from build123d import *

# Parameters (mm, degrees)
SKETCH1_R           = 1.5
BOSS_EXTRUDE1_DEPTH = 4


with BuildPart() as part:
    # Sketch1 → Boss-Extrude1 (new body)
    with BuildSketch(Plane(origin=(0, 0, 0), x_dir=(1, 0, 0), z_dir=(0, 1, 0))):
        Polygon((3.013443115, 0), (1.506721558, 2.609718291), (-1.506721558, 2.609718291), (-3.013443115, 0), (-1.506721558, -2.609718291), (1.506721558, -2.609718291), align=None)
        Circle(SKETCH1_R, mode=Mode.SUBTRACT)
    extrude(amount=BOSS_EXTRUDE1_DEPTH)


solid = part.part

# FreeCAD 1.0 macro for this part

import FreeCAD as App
import Part
import Sketcher
Q = App.Units.Quantity

doc = App.newDocument("Part")
body = doc.addObject("PartDesign::Body", "Body")

sketch1 = body.newObject("Sketcher::SketchObject", "Sketch")
sketch1.AttachmentSupport = (doc.getObject("XZ_Plane"), [""])
sketch1.MapMode = "FlatFace"
sketch1.addGeometry([
    Part.LineSegment(App.Vector(3, 0, 0), App.Vector(1.5, -2.6, 0)),
    Part.LineSegment(App.Vector(1.5, -2.6, 0), App.Vector(-1.5, -2.6, 0)),
    Part.LineSegment(App.Vector(-1.5, -2.6, 0), App.Vector(-3, 0, 0)),
    Part.LineSegment(App.Vector(-3, 0, 0), App.Vector(-1.5, 2.6, 0)),
    Part.LineSegment(App.Vector(-1.5, 2.6, 0), App.Vector(1.5, 2.6, 0)),
    Part.LineSegment(App.Vector(1.5, 2.6, 0), App.Vector(3, 0, 0)),
    Part.Circle(App.Vector(0, 0, 0), App.Vector(0, 0, 1), 1.5),
], False)
sketch1.addConstraint([
    Sketcher.Constraint("Coincident", 0, 2, 1, 1),
    Sketcher.Constraint("Coincident", 1, 2, 2, 1),
    Sketcher.Constraint("Coincident", 2, 2, 3, 1),
    Sketcher.Constraint("Coincident", 3, 2, 4, 1),
    Sketcher.Constraint("Coincident", 4, 2, 5, 1),
    Sketcher.Constraint("Coincident", 5, 2, 0, 1),
    Sketcher.Constraint("Horizontal", 1),
    Sketcher.Constraint("Horizontal", 4),
    Sketcher.Constraint("Coincident", 6, 3, -1, 1),
    Sketcher.Constraint("Symmetric", 0, 2, 3, 2, -1, 1),
    Sketcher.Constraint("Symmetric", 2, 2, 5, 2, -1, 1),
    Sketcher.Constraint("PointOnObject", 2, 2, -1),
    Sketcher.Constraint("Parallel", 2, 5),
    Sketcher.Constraint("Vertical", 1, 2, 3, 2),
    Sketcher.Constraint("Diameter", 6, 3.0),
    Sketcher.Constraint("Angle", 0, Q("-120 deg")),
    Sketcher.Constraint("DistanceX", 1, 2, 1, 1, 3.013443),
    Sketcher.Constraint("DistanceY", 0, 2, -1, 1, 2.609718),
])
pad1 = body.newObject("PartDesign::Pad", "Pad")
pad1.Profile = sketch1
pad1.Length = 4
pad1.Reversed = True

doc.recompute()
